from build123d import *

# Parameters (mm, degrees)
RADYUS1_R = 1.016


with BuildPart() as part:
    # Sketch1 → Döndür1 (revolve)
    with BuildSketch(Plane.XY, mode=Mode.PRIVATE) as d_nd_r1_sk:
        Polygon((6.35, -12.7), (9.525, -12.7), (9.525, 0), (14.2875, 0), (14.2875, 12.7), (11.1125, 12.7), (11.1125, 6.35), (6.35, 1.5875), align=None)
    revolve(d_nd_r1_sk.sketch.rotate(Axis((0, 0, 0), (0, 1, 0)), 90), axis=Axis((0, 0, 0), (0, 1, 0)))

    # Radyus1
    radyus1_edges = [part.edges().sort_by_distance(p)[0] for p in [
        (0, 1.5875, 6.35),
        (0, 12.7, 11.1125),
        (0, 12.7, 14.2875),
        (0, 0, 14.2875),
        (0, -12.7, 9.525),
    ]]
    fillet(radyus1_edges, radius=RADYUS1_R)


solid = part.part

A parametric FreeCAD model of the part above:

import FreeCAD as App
import Part
import Sketcher

V = App.Vector
Q = App.Units.Quantity


def edges_at(feature, points):
    """Names of the edges that pass closest to the given points."""
    edges = feature.Shape.Edges
    near = lambda p: min(range(len(edges)), key=lambda i: edges[i].distToShape(Part.Vertex(*p))[0])
    return sorted({f"Edge{near(p) + 1}" for p in points})


def add_polygon(sketch, points):
    """Adds a closed chain of lines whose ends are joined by coincident constraints."""
    first, n = sketch.GeometryCount, len(points)
    for a, b in zip(points, points[1:] + points[:1]):
        sketch.addGeometry(Part.LineSegment(App.Vector(*a, 0), App.Vector(*b, 0)), False)
    for i in range(n):
        sketch.addConstraint(Sketcher.Constraint("Coincident", first + i, 2, first + (i + 1) % n, 1))

doc = App.newDocument("Part")
params = doc.addObject("Spreadsheet::Sheet", "Params")
for row, (alias, value) in enumerate([
    ("sketch1_height", "0.5 in"),
    ("sketch1_height2", "0.25 in"),
    ("sketch1_width", "0.125 in"),
    ("sketch1_width2", "0.1875 in"),
    ("revolution_angle", "360 deg"),
    ("fillet_radius", "0.04 in"),
], start=1):
    params.set(f"A{row}", alias)
    params.set(f"B{row}", "=" + value)
    params.setAlias(f"B{row}", alias)

body = doc.addObject("PartDesign::Body", "Body")

# Sketch on XY plane
sketch1 = body.newObject("Sketcher::SketchObject", "Sketch")
sketch1.AttachmentSupport = (doc.getObject("XY_Plane"), [""])
sketch1.MapMode = "FlatFace"
add_polygon(sketch1, [(6.35, -12.7), (9.525, -12.7), (9.525, 0), (14.2875, 0), (14.2875, 12.7), (11.1125, 12.7), (11.1125, 6.35), (6.35, 1.5875)])  # lines 0-7
sketch1.addConstraint([
    Sketcher.Constraint("Horizontal", 0),
    Sketcher.Constraint("Vertical", 1),
    Sketcher.Constraint("Horizontal", 2),
    Sketcher.Constraint("Vertical", 3),
    Sketcher.Constraint("Horizontal", 4),
    Sketcher.Constraint("Vertical", 5),
    Sketcher.Constraint("Vertical", 7),
    Sketcher.Constraint("PointOnObject", 1, 2, -1),
    Sketcher.Constraint("Equal", 0, 4),
    Sketcher.Constraint("Equal", 1, 3),
    Sketcher.Constraint("DistanceY", 1, 1, 1, 2, Q("0.5 in")),
    Sketcher.Constraint("Angle", 6, Q("-135 deg")),
    Sketcher.Constraint("DistanceY", 5, 2, 5, 1, Q("0.25 in")),
    Sketcher.Constraint("DistanceX", 0, 1, 0, 2, Q("0.125 in")),
    Sketcher.Constraint("DistanceX", 2, 1, 2, 2, Q("0.1875 in")),
    Sketcher.Constraint("DistanceX", -1, 1, 6, 2, Q("0.25 in")),
])
sketch1.setExpression("Constraints[18]", "Params.sketch1_height")
sketch1.setExpression("Constraints[20]", "Params.sketch1_height2")
sketch1.setExpression("Constraints[21]", "Params.sketch1_width")
sketch1.setExpression("Constraints[22]", "Params.sketch1_width2")
revolution = body.newObject("PartDesign::Revolution", "Revolution")
revolution.Profile = sketch1
revolution.ReferenceAxis = (sketch1, ["V_Axis"])
revolution.setExpression("Angle", "Params.revolution_angle")
doc.recompute()

fillet = body.newObject("PartDesign::Fillet", "Fillet")
fillet.Base = (revolution, edges_at(revolution, [
    (0, 1.587, 6.35),
    (0, 12.7, 11.113),
    (0, 12.7, 14.287),
    (0, 0, 14.287),
    (0, -12.7, 9.525),
]))
fillet.setExpression("Radius", "Params.fillet_radius")

doc.recompute()
